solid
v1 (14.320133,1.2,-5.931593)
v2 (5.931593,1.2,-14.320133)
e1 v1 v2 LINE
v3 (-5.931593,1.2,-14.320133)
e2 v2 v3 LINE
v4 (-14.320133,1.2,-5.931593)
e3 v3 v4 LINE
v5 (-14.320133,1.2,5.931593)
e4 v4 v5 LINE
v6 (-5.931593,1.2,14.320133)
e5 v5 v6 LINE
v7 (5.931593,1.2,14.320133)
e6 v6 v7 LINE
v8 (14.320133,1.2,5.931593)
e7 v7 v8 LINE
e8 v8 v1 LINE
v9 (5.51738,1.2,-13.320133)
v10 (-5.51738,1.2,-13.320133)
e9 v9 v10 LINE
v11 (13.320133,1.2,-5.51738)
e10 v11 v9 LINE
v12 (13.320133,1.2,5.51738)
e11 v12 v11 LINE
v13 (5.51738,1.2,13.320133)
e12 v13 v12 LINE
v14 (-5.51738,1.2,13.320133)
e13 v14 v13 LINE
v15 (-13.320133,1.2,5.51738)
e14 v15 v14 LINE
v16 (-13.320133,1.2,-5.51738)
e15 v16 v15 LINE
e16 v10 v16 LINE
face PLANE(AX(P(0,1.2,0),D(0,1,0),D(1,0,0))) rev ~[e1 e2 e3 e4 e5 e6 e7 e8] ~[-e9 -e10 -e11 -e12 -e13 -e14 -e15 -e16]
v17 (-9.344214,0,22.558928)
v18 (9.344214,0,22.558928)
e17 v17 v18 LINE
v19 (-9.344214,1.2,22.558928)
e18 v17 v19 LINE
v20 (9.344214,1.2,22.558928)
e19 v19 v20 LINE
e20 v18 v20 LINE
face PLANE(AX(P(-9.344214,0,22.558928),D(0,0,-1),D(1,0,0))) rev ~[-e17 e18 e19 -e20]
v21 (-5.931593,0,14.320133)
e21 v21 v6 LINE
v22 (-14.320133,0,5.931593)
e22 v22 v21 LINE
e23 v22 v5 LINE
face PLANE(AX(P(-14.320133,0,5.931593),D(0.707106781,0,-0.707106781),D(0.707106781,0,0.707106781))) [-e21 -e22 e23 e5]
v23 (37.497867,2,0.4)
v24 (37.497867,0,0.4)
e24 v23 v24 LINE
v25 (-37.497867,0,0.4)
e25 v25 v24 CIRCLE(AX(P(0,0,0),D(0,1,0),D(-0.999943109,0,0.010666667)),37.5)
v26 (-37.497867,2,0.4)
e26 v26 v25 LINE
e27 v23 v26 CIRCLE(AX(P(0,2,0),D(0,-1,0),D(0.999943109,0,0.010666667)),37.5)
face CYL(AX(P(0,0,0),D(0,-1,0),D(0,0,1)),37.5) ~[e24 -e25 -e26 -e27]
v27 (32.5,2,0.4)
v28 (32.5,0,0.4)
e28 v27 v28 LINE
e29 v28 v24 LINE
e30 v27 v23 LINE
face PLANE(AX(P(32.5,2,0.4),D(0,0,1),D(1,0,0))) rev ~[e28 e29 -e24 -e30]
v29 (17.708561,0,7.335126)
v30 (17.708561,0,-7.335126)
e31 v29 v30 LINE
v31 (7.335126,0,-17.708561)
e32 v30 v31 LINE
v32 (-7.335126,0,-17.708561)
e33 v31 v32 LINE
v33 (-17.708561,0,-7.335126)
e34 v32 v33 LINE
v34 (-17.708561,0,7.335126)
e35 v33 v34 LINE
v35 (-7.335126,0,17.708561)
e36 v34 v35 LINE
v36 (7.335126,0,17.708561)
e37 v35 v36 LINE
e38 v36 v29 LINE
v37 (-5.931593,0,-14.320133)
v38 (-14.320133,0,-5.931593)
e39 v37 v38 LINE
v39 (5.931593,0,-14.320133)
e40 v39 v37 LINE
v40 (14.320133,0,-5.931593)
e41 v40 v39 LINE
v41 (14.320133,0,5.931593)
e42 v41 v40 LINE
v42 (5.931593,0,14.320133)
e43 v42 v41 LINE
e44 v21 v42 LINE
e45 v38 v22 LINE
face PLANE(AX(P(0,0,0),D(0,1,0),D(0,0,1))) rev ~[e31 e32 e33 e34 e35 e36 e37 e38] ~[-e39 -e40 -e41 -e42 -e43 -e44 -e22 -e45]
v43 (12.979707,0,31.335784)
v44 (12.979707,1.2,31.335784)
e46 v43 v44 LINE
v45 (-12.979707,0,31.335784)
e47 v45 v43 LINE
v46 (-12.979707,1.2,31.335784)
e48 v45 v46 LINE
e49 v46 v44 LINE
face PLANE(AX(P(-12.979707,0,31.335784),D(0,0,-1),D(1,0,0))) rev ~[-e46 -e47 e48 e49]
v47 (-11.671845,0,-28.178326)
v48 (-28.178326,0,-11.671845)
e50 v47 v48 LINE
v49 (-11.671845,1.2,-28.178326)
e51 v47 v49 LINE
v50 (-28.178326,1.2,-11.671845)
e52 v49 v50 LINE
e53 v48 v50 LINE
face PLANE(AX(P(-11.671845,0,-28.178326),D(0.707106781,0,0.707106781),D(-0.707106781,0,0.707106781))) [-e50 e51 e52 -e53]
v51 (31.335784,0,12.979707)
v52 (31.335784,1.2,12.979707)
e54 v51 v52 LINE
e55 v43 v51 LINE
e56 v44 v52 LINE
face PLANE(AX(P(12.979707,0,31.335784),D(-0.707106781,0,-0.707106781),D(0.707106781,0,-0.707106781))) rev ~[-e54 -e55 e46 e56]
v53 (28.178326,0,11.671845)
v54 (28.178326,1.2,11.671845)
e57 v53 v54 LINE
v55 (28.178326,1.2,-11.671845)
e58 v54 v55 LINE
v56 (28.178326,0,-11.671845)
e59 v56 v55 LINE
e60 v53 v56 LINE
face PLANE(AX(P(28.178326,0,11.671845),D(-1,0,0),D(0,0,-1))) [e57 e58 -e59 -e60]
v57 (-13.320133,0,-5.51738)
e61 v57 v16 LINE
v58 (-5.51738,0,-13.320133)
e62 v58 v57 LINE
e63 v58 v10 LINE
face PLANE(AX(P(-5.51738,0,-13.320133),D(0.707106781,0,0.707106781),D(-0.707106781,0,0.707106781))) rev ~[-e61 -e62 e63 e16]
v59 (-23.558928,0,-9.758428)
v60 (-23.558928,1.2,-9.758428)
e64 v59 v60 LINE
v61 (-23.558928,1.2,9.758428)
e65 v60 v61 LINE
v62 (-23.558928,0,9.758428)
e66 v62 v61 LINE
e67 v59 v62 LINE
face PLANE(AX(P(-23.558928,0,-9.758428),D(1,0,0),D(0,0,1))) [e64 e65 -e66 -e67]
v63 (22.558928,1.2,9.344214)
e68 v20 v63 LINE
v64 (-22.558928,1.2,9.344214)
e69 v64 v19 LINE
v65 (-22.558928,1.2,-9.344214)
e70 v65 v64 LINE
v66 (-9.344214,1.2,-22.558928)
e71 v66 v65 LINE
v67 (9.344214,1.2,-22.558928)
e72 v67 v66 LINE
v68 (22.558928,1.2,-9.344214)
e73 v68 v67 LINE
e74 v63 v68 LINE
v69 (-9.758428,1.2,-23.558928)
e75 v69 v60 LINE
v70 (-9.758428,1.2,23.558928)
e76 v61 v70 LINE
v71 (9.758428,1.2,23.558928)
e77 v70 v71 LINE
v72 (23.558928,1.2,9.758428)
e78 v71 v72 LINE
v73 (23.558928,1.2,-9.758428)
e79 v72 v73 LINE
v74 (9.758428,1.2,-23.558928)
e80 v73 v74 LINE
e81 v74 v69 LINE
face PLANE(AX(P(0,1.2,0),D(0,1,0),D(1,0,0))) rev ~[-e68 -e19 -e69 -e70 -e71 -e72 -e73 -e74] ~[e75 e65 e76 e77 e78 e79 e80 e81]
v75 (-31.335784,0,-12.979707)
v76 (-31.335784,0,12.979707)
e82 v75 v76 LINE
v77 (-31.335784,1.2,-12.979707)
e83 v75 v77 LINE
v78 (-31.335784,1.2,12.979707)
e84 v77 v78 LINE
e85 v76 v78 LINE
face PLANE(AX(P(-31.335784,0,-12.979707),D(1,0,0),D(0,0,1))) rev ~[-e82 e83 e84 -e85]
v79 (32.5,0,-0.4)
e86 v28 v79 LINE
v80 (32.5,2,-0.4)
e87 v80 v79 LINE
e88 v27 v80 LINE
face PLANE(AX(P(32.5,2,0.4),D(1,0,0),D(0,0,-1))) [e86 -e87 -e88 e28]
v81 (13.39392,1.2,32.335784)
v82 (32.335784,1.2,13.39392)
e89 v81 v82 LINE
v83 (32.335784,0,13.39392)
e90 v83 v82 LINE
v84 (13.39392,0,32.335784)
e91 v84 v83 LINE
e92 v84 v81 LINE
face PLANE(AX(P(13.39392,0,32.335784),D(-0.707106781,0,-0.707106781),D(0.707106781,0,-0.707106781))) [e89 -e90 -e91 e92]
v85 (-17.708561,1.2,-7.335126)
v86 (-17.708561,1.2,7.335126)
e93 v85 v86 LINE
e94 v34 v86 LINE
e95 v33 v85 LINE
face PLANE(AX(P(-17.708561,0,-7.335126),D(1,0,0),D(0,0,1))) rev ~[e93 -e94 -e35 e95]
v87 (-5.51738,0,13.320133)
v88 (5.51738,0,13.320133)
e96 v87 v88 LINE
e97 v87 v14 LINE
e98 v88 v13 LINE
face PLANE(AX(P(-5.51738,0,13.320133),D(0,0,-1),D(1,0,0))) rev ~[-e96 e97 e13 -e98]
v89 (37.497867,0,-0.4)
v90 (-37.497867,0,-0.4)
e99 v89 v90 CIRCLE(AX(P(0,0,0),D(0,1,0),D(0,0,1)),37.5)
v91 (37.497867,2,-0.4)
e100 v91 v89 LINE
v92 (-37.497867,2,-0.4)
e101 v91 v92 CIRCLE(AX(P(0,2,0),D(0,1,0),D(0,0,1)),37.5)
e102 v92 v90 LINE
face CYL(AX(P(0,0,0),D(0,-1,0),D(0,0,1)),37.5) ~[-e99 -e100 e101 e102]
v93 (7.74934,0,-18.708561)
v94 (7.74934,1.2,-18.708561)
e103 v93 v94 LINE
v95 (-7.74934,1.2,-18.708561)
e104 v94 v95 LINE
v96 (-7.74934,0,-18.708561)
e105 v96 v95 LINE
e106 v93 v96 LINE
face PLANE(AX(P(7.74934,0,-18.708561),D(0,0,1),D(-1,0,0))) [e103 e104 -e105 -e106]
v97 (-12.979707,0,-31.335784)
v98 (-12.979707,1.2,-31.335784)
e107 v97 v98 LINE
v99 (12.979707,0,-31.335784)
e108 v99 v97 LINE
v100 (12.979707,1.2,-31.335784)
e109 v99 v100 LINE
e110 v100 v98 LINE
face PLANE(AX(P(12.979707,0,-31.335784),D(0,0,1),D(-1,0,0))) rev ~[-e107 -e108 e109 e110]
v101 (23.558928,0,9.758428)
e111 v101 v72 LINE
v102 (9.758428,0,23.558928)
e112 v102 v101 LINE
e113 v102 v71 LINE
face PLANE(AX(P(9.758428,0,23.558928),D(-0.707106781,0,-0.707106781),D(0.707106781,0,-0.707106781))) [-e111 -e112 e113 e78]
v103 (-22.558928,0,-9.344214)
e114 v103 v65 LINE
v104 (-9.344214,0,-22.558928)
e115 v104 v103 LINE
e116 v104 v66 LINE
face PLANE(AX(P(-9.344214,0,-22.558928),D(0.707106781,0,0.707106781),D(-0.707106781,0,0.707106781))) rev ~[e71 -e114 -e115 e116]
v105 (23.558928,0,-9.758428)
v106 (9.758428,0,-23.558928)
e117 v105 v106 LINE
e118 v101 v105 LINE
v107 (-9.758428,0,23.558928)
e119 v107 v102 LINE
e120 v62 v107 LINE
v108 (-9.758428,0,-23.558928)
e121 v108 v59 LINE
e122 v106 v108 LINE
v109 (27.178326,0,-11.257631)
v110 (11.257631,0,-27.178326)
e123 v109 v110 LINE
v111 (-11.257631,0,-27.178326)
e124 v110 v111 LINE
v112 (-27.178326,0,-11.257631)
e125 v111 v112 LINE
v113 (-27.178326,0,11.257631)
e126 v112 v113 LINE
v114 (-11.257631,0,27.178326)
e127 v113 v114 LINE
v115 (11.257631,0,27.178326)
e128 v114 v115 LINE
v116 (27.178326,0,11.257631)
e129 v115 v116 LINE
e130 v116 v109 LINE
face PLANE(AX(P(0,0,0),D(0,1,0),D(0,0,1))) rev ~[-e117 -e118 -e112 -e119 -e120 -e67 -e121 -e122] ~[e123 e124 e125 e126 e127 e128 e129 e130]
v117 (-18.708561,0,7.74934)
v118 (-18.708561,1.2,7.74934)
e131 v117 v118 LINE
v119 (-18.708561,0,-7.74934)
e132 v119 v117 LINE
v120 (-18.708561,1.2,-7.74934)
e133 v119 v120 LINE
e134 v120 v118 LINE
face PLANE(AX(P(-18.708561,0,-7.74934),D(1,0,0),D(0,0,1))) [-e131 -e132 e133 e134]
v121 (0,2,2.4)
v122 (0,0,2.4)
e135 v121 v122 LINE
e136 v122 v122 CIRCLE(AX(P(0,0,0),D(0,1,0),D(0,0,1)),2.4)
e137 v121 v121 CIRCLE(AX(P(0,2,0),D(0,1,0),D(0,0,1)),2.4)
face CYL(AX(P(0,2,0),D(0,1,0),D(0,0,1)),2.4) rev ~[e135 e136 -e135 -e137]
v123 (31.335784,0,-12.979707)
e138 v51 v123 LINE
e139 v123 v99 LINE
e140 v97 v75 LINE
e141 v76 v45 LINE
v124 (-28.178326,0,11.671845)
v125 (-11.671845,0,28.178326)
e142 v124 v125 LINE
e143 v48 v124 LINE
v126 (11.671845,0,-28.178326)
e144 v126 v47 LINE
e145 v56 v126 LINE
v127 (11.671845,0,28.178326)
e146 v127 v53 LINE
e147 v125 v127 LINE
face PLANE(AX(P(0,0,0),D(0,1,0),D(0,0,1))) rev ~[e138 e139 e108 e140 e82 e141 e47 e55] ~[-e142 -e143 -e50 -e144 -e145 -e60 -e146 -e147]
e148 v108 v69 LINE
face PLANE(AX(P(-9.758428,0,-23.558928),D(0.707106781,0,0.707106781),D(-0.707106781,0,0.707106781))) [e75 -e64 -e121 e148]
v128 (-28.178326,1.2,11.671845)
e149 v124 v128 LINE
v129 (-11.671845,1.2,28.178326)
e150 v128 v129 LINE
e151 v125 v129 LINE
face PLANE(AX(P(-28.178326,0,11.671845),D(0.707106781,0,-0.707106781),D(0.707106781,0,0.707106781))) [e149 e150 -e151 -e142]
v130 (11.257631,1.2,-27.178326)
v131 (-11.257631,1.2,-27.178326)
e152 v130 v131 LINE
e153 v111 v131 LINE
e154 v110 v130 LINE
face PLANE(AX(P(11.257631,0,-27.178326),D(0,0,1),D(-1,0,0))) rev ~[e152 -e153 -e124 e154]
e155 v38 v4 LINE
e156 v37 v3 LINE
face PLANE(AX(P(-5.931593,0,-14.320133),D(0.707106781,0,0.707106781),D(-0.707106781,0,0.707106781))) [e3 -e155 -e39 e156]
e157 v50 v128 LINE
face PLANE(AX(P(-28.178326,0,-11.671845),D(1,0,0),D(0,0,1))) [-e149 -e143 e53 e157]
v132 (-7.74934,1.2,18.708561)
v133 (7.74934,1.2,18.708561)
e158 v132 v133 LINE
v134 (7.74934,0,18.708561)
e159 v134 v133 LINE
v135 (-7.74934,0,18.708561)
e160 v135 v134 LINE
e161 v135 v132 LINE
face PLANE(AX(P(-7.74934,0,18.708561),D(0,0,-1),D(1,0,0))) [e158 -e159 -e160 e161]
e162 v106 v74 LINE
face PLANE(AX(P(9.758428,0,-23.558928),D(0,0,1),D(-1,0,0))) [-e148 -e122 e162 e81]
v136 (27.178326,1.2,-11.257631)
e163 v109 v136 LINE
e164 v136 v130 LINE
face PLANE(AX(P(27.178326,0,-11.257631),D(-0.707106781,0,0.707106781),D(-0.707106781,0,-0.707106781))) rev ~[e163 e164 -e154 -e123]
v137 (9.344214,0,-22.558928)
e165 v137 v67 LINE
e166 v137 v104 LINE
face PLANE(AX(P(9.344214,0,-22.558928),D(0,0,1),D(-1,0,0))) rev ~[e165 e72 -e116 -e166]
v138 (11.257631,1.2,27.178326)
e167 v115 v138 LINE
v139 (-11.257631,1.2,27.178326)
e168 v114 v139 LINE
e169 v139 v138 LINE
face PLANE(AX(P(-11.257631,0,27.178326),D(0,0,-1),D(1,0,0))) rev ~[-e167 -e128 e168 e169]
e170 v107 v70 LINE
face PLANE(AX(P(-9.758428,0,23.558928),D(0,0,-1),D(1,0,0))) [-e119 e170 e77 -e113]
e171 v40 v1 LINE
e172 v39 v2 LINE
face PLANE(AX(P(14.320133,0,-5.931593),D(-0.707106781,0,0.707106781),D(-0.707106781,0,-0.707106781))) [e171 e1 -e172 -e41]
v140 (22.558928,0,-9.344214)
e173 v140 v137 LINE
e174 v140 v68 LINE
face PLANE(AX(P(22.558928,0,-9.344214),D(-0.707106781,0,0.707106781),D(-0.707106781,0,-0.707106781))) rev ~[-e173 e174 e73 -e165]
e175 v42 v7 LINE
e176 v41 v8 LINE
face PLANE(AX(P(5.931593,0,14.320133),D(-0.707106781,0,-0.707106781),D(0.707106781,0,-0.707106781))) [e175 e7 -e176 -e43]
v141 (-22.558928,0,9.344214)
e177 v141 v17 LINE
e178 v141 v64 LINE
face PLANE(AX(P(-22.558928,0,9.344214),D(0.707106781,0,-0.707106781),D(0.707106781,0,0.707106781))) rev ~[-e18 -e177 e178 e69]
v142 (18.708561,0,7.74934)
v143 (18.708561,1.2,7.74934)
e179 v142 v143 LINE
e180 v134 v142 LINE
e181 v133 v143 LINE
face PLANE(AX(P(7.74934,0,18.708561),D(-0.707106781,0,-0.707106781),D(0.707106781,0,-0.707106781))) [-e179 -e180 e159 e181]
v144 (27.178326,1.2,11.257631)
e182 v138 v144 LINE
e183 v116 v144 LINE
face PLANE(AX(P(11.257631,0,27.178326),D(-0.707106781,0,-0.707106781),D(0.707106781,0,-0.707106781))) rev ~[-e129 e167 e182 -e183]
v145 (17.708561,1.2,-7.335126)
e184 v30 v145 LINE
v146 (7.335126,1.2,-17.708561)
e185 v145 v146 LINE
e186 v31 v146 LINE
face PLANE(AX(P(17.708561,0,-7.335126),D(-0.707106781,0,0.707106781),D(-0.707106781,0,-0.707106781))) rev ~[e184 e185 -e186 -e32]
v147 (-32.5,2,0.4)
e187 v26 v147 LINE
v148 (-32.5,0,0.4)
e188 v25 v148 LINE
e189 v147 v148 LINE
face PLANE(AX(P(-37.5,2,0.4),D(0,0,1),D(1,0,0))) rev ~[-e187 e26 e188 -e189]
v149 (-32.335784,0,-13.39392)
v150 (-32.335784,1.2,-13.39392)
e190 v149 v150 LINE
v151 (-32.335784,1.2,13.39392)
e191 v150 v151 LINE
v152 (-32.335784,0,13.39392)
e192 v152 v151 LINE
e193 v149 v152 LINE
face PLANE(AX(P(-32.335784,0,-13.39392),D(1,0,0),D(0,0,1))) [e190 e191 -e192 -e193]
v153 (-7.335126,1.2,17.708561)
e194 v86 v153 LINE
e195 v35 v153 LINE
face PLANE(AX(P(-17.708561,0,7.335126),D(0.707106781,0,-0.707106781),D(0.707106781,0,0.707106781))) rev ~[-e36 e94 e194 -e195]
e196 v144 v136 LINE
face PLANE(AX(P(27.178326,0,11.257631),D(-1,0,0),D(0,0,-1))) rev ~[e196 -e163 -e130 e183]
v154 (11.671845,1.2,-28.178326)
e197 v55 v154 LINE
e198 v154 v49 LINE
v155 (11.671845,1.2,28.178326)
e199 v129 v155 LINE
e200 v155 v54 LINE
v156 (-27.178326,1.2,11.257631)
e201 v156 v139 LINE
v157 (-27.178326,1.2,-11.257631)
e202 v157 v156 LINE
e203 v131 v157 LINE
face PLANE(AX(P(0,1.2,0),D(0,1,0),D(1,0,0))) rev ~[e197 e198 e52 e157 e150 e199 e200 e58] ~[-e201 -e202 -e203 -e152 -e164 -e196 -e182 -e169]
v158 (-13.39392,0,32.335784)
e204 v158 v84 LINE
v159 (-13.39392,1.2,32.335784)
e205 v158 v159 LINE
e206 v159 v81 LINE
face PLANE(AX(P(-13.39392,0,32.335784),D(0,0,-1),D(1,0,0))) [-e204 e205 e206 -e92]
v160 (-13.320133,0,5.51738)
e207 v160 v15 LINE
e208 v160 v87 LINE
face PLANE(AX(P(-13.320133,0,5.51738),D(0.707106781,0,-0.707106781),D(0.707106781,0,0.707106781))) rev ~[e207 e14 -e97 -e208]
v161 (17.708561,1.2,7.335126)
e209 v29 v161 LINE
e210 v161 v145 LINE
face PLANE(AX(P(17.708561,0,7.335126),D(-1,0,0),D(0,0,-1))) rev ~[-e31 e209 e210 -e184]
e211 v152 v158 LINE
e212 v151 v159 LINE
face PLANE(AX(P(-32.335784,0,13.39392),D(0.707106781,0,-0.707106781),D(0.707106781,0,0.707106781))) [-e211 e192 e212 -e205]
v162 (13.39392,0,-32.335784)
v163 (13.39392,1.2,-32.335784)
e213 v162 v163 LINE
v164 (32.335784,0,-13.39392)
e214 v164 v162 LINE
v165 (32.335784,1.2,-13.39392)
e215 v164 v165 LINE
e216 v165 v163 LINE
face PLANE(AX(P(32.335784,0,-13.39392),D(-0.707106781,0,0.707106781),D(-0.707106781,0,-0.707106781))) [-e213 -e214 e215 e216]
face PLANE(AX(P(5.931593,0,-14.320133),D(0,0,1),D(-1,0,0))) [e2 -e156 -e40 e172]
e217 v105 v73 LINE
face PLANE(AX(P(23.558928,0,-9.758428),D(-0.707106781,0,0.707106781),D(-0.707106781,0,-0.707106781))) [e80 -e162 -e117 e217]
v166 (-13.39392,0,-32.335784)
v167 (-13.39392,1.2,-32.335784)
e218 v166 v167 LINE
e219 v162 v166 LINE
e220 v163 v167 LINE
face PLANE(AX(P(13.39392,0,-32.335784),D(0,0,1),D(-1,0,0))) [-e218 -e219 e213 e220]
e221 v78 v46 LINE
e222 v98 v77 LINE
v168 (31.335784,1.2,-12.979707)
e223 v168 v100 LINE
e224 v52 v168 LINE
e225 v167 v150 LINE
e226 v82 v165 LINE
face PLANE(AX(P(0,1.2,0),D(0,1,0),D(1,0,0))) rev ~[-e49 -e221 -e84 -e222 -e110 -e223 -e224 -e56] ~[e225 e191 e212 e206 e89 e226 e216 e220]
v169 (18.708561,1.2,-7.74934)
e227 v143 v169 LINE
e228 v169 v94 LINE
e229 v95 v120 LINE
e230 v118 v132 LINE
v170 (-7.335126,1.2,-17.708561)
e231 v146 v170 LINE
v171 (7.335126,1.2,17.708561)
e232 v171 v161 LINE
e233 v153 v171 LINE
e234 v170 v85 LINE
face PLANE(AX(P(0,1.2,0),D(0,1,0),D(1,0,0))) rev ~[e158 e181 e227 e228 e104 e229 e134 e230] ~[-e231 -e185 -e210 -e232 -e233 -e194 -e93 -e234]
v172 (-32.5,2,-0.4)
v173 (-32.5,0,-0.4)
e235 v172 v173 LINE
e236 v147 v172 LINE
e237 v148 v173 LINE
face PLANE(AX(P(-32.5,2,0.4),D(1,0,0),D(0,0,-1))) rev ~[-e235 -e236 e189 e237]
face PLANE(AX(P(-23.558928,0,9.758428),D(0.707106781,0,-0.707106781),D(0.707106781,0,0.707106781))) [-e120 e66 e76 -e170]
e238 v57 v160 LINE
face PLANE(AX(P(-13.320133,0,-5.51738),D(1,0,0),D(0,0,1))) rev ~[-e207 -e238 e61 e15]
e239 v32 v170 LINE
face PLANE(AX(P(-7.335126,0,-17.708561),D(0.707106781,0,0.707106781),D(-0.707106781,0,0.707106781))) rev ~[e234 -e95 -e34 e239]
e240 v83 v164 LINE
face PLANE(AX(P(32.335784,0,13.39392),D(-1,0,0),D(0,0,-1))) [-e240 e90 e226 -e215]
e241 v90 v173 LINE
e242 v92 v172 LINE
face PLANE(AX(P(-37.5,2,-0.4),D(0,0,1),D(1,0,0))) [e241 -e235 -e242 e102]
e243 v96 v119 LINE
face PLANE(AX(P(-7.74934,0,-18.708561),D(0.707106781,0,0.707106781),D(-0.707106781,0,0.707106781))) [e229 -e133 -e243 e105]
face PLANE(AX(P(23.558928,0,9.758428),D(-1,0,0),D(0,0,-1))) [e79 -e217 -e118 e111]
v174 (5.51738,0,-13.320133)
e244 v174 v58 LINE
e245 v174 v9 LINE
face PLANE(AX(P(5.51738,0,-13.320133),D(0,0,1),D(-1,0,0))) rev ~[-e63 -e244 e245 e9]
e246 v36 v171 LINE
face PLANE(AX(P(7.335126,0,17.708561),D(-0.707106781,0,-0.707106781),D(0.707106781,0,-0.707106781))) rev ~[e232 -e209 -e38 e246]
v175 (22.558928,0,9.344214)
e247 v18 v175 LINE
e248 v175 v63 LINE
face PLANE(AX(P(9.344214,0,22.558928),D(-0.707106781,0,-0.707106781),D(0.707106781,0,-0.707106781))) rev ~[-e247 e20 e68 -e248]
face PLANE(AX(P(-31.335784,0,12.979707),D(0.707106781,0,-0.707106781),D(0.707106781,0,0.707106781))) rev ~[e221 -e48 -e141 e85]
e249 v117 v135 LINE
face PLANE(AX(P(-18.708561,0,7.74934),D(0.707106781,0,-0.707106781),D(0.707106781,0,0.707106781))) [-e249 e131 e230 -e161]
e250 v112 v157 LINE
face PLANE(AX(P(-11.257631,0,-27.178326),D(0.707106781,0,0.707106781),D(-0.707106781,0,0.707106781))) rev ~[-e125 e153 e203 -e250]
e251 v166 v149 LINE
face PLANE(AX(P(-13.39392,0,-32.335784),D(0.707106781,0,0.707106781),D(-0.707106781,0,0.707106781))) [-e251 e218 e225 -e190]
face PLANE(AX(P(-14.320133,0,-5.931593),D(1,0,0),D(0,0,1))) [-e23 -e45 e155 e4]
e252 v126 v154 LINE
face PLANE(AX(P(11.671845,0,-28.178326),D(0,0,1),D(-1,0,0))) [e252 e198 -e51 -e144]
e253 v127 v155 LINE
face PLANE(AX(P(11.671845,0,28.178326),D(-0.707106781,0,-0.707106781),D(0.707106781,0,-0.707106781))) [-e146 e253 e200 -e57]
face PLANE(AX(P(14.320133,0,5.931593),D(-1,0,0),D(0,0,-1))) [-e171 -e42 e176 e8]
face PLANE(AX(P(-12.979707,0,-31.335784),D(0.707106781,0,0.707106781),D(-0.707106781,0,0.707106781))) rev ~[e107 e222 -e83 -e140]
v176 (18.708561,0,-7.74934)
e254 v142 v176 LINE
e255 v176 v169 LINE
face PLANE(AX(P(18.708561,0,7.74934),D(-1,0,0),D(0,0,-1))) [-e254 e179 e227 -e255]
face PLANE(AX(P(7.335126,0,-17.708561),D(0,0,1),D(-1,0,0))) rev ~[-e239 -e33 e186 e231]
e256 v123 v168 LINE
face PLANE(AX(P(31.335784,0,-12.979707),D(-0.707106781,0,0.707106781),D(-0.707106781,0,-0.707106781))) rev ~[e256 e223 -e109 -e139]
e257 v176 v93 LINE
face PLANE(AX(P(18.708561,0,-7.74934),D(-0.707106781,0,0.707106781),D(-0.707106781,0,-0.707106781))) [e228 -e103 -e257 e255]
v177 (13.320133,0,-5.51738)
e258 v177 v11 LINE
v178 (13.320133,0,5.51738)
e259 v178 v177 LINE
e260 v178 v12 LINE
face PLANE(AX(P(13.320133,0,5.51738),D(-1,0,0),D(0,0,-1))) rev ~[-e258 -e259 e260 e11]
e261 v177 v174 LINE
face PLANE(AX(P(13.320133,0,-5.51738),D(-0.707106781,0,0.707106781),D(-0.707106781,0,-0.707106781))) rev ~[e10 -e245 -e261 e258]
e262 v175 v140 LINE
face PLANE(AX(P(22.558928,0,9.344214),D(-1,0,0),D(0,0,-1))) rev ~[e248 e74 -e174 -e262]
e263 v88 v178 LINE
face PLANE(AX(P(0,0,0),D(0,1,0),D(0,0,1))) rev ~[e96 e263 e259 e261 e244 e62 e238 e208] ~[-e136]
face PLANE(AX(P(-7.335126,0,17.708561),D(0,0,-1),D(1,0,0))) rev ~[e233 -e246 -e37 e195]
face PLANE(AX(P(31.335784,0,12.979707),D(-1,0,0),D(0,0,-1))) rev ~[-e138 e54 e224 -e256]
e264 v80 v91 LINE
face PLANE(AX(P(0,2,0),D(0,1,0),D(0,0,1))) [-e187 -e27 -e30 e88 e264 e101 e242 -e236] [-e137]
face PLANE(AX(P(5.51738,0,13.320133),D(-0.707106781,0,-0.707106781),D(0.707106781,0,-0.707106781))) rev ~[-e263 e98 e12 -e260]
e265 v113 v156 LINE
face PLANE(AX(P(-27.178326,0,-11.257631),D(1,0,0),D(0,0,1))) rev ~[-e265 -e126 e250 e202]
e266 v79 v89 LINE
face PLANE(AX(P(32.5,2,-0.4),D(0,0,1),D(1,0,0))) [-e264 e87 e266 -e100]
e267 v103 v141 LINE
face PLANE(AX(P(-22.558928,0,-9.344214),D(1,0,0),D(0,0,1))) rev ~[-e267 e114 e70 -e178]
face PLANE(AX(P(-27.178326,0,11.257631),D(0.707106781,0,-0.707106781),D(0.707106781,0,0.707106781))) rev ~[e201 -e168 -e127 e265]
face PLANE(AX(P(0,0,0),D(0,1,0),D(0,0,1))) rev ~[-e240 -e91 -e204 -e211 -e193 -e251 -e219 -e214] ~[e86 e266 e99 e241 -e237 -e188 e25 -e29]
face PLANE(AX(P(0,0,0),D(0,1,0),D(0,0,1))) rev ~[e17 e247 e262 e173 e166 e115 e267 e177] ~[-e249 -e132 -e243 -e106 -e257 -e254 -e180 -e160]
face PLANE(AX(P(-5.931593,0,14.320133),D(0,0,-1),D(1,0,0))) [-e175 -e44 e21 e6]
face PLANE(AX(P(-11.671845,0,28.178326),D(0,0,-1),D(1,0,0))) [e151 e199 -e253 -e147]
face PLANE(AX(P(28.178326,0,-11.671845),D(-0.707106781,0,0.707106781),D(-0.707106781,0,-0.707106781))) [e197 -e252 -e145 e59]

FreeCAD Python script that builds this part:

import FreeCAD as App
import Part
import Sketcher
from FreeCAD import Vector
Q = App.Units.Quantity

doc = App.newDocument("Part")
body = doc.addObject("PartDesign::Body", "Body")

# Sketch on XZ plane
sketch1 = doc.addObject("Sketcher::SketchObject", "Sketch")
body.addObject(sketch1)
sketch1.AttachmentSupport = (doc.XZ_Plane, [""])
sketch1.MapMode = "FlatFace"
sketch1.addGeometry(Part.Circle(Vector(0, 0, 0), Vector(0, 0, 1), 38), False)
sketch1.addConstraint(Sketcher.Constraint("Coincident", 0, 3, -1, 1))
sketch1.addConstraint(Sketcher.Constraint("Diameter", 0, Q("75 mm")))
pad1 = doc.addObject("PartDesign::Pad", "Pad")
body.addObject(pad1)
pad1.Profile = sketch1
pad1.Length = 2
pad1.Reversed = True

# Sketch on XZ plane
sketch2 = doc.addObject("Sketcher::SketchObject", "Sketch001")
body.addObject(sketch2)
sketch2.AttachmentSupport = (doc.XZ_Plane, [""])
sketch2.MapMode = "FlatFace"
sketch2.addGeometry(Part.LineSegment(Vector(13, 32, 0), Vector(32, 13, 0)), False)
sketch2.addGeometry(Part.LineSegment(Vector(32, 13, 0), Vector(32, -13, 0)), False)
sketch2.addGeometry(Part.LineSegment(Vector(32, -13, 0), Vector(13, -32, 0)), False)
sketch2.addGeometry(Part.LineSegment(Vector(13, -32, 0), Vector(-13, -32, 0)), False)
sketch2.addGeometry(Part.LineSegment(Vector(-13, -32, 0), Vector(-32, -13, 0)), False)
sketch2.addGeometry(Part.LineSegment(Vector(-32, -13, 0), Vector(-32, 13, 0)), False)
sketch2.addGeometry(Part.LineSegment(Vector(-32, 13, 0), Vector(-13, 32, 0)), False)
sketch2.addGeometry(Part.LineSegment(Vector(-13, 32, 0), Vector(13, 32, 0)), False)
sketch2.addGeometry(Part.LineSegment(Vector(31, 13, 0), Vector(13, 31, 0)), False)
sketch2.addGeometry(Part.LineSegment(Vector(13, 31, 0), Vector(-13, 31, 0)), False)
sketch2.addGeometry(Part.LineSegment(Vector(-13, 31, 0), Vector(-31, 13, 0)), False)
sketch2.addGeometry(Part.LineSegment(Vector(-31, 13, 0), Vector(-31, -13, 0)), False)
sketch2.addGeometry(Part.LineSegment(Vector(-31, -13, 0), Vector(-13, -31, 0)), False)
sketch2.addGeometry(Part.LineSegment(Vector(-13, -31, 0), Vector(13, -31, 0)), False)
sketch2.addGeometry(Part.LineSegment(Vector(13, -31, 0), Vector(31, -13, 0)), False)
sketch2.addGeometry(Part.LineSegment(Vector(31, -13, 0), Vector(31, 13, 0)), False)
sketch2.addGeometry(Part.LineSegment(Vector(12, 28, 0), Vector(28, 12, 0)), False)
sketch2.addGeometry(Part.LineSegment(Vector(28, 12, 0), Vector(28, -12, 0)), False)
sketch2.addGeometry(Part.LineSegment(Vector(28, -12, 0), Vector(12, -28, 0)), False)
sketch2.addGeometry(Part.LineSegment(Vector(12, -28, 0), Vector(-12, -28, 0)), False)
sketch2.addGeometry(Part.LineSegment(Vector(-12, -28, 0), Vector(-28, -12, 0)), False)
sketch2.addGeometry(Part.LineSegment(Vector(-28, -12, 0), Vector(-28, 12, 0)), False)
sketch2.addGeometry(Part.LineSegment(Vector(-28, 12, 0), Vector(-12, 28, 0)), False)
sketch2.addGeometry(Part.LineSegment(Vector(-12, 28, 0), Vector(12, 28, 0)), False)
sketch2.addGeometry(Part.LineSegment(Vector(27, 11, 0), Vector(11, 27, 0)), False)
sketch2.addGeometry(Part.LineSegment(Vector(11, 27, 0), Vector(-11, 27, 0)), False)
sketch2.addGeometry(Part.LineSegment(Vector(-11, 27, 0), Vector(-27, 11, 0)), False)
sketch2.addGeometry(Part.LineSegment(Vector(-27, 11, 0), Vector(-27, -11, 0)), False)
sketch2.addGeometry(Part.LineSegment(Vector(-27, -11, 0), Vector(-11, -27, 0)), False)
sketch2.addGeometry(Part.LineSegment(Vector(-11, -27, 0), Vector(11, -27, 0)), False)
sketch2.addGeometry(Part.LineSegment(Vector(11, -27, 0), Vector(27, -11, 0)), False)
sketch2.addGeometry(Part.LineSegment(Vector(27, -11, 0), Vector(27, 11, 0)), False)
sketch2.addGeometry(Part.LineSegment(Vector(-10, 24, 0), Vector(10, 24, 0)), False)
sketch2.addGeometry(Part.LineSegment(Vector(10, 24, 0), Vector(24, 10, 0)), False)
sketch2.addGeometry(Part.LineSegment(Vector(24, 10, 0), Vector(24, -10, 0)), False)
sketch2.addGeometry(Part.LineSegment(Vector(24, -10, 0), Vector(10, -24, 0)), False)
sketch2.addGeometry(Part.LineSegment(Vector(10, -24, 0), Vector(-10, -24, 0)), False)
sketch2.addGeometry(Part.LineSegment(Vector(-10, -24, 0), Vector(-24, -10, 0)), False)
sketch2.addGeometry(Part.LineSegment(Vector(-24, -10, 0), Vector(-24, 10, 0)), False)
sketch2.addGeometry(Part.LineSegment(Vector(-24, 10, 0), Vector(-10, 24, 0)), False)
sketch2.addGeometry(Part.LineSegment(Vector(9, 23, 0), Vector(-9, 23, 0)), False)
sketch2.addGeometry(Part.LineSegment(Vector(-9, 23, 0), Vector(-23, 9, 0)), False)
sketch2.addGeometry(Part.LineSegment(Vector(-23, 9, 0), Vector(-23, -9, 0)), False)
sketch2.addGeometry(Part.LineSegment(Vector(-23, -9, 0), Vector(-9, -23, 0)), False)
sketch2.addGeometry(Part.LineSegment(Vector(-9, -23, 0), Vector(9, -23, 0)), False)
sketch2.addGeometry(Part.LineSegment(Vector(9, -23, 0), Vector(23, -9, 0)), False)
sketch2.addGeometry(Part.LineSegment(Vector(23, -9, 0), Vector(23, 9, 0)), False)
sketch2.addGeometry(Part.LineSegment(Vector(23, 9, 0), Vector(9, 23, 0)), False)
sketch2.addGeometry(Part.LineSegment(Vector(8, 19, 0), Vector(19, 8, 0)), False)
sketch2.addGeometry(Part.LineSegment(Vector(19, 8, 0), Vector(19, -8, 0)), False)
sketch2.addGeometry(Part.LineSegment(Vector(19, -8, 0), Vector(8, -19, 0)), False)
sketch2.addGeometry(Part.LineSegment(Vector(8, -19, 0), Vector(-8, -19, 0)), False)
sketch2.addGeometry(Part.LineSegment(Vector(-8, -19, 0), Vector(-19, -8, 0)), False)
sketch2.addGeometry(Part.LineSegment(Vector(-19, -8, 0), Vector(-19, 8, 0)), False)
sketch2.addGeometry(Part.LineSegment(Vector(-19, 8, 0), Vector(-8, 19, 0)), False)
sketch2.addGeometry(Part.LineSegment(Vector(-8, 19, 0), Vector(8, 19, 0)), False)
sketch2.addGeometry(Part.LineSegment(Vector(18, 7, 0), Vector(7, 18, 0)), False)
sketch2.addGeometry(Part.LineSegment(Vector(7, 18, 0), Vector(-7, 18, 0)), False)
sketch2.addGeometry(Part.LineSegment(Vector(-7, 18, 0), Vector(-18, 7, 0)), False)
sketch2.addGeometry(Part.LineSegment(Vector(-18, 7, 0), Vector(-18, -7, 0)), False)
sketch2.addGeometry(Part.LineSegment(Vector(-18, -7, 0), Vector(-7, -18, 0)), False)
sketch2.addGeometry(Part.LineSegment(Vector(-7, -18, 0), Vector(7, -18, 0)), False)
sketch2.addGeometry(Part.LineSegment(Vector(7, -18, 0), Vector(18, -7, 0)), False)
sketch2.addGeometry(Part.LineSegment(Vector(18, -7, 0), Vector(18, 7, 0)), False)
sketch2.addGeometry(Part.LineSegment(Vector(-6, -14, 0), Vector(-14, -6, 0)), False)
sketch2.addGeometry(Part.LineSegment(Vector(-14, -6, 0), Vector(-14, 6, 0)), False)
sketch2.addGeometry(Part.LineSegment(Vector(-14, 6, 0), Vector(-6, 14, 0)), False)
sketch2.addGeometry(Part.LineSegment(Vector(-6, 14, 0), Vector(6, 14, 0)), False)
sketch2.addGeometry(Part.LineSegment(Vector(6, 14, 0), Vector(14, 6, 0)), False)
sketch2.addGeometry(Part.LineSegment(Vector(14, 6, 0), Vector(14, -6, 0)), False)
sketch2.addGeometry(Part.LineSegment(Vector(14, -6, 0), Vector(6, -14, 0)), False)
sketch2.addGeometry(Part.LineSegment(Vector(6, -14, 0), Vector(-6, -14, 0)), False)
sketch2.addGeometry(Part.LineSegment(Vector(-13, -6, 0), Vector(-6, -13, 0)), False)
sketch2.addGeometry(Part.LineSegment(Vector(-6, -13, 0), Vector(6, -13, 0)), False)
sketch2.addGeometry(Part.LineSegment(Vector(6, -13, 0), Vector(13, -6, 0)), False)
sketch2.addGeometry(Part.LineSegment(Vector(13, -6, 0), Vector(13, 6, 0)), False)
sketch2.addGeometry(Part.LineSegment(Vector(13, 6, 0), Vector(6, 13, 0)), False)
sketch2.addGeometry(Part.LineSegment(Vector(6, 13, 0), Vector(-6, 13, 0)), False)
sketch2.addGeometry(Part.LineSegment(Vector(-6, 13, 0), Vector(-13, 6, 0)), False)
sketch2.addGeometry(Part.LineSegment(Vector(-13, 6, 0), Vector(-13, -6, 0)), False)
sketch2.addConstraint(Sketcher.Constraint("Coincident", 0, 2, 1, 1))
sketch2.addConstraint(Sketcher.Constraint("Coincident", 1, 2, 2, 1))
sketch2.addConstraint(Sketcher.Constraint("Coincident", 2, 2, 3, 1))
sketch2.addConstraint(Sketcher.Constraint("Coincident", 3, 2, 4, 1))
sketch2.addConstraint(Sketcher.Constraint("Coincident", 4, 2, 5, 1))
sketch2.addConstraint(Sketcher.Constraint("Coincident", 5, 2, 6, 1))
sketch2.addConstraint(Sketcher.Constraint("Coincident", 6, 2, 7, 1))
sketch2.addConstraint(Sketcher.Constraint("Coincident", 7, 2, 0, 1))
sketch2.addConstraint(Sketcher.Constraint("Coincident", 8, 2, 9, 1))
sketch2.addConstraint(Sketcher.Constraint("Coincident", 9, 2, 10, 1))
sketch2.addConstraint(Sketcher.Constraint("Coincident", 10, 2, 11, 1))
sketch2.addConstraint(Sketcher.Constraint("Coincident", 11, 2, 12, 1))
sketch2.addConstraint(Sketcher.Constraint("Coincident", 12, 2, 13, 1))
sketch2.addConstraint(Sketcher.Constraint("Coincident", 13, 2, 14, 1))
sketch2.addConstraint(Sketcher.Constraint("Coincident", 14, 2, 15, 1))
sketch2.addConstraint(Sketcher.Constraint("Coincident", 15, 2, 8, 1))
sketch2.addConstraint(Sketcher.Constraint("Coincident", 16, 2, 17, 1))
sketch2.addConstraint(Sketcher.Constraint("Coincident", 17, 2, 18, 1))
sketch2.addConstraint(Sketcher.Constraint("Coincident", 18, 2, 19, 1))
sketch2.addConstraint(Sketcher.Constraint("Coincident", 19, 2, 20, 1))
sketch2.addConstraint(Sketcher.Constraint("Coincident", 20, 2, 21, 1))
sketch2.addConstraint(Sketcher.Constraint("Coincident", 21, 2, 22, 1))
sketch2.addConstraint(Sketcher.Constraint("Coincident", 22, 2, 23, 1))
sketch2.addConstraint(Sketcher.Constraint("Coincident", 23, 2, 16, 1))
sketch2.addConstraint(Sketcher.Constraint("Coincident", 24, 2, 25, 1))
sketch2.addConstraint(Sketcher.Constraint("Coincident", 25, 2, 26, 1))
sketch2.addConstraint(Sketcher.Constraint("Coincident", 26, 2, 27, 1))
sketch2.addConstraint(Sketcher.Constraint("Coincident", 27, 2, 28, 1))
sketch2.addConstraint(Sketcher.Constraint("Coincident", 28, 2, 29, 1))
sketch2.addConstraint(Sketcher.Constraint("Coincident", 29, 2, 30, 1))
sketch2.addConstraint(Sketcher.Constraint("Coincident", 30, 2, 31, 1))
sketch2.addConstraint(Sketcher.Constraint("Coincident", 31, 2, 24, 1))
sketch2.addConstraint(Sketcher.Constraint("Coincident", 32, 2, 33, 1))
sketch2.addConstraint(Sketcher.Constraint("Coincident", 33, 2, 34, 1))
sketch2.addConstraint(Sketcher.Constraint("Coincident", 34, 2, 35, 1))
sketch2.addConstraint(Sketcher.Constraint("Coincident", 35, 2, 36, 1))
sketch2.addConstraint(Sketcher.Constraint("Coincident", 36, 2, 37, 1))
sketch2.addConstraint(Sketcher.Constraint("Coincident", 37, 2, 38, 1))
sketch2.addConstraint(Sketcher.Constraint("Coincident", 38, 2, 39, 1))
sketch2.addConstraint(Sketcher.Constraint("Coincident", 39, 2, 32, 1))
sketch2.addConstraint(Sketcher.Constraint("Coincident", 40, 2, 41, 1))
sketch2.addConstraint(Sketcher.Constraint("Coincident", 41, 2, 42, 1))
sketch2.addConstraint(Sketcher.Constraint("Coincident", 42, 2, 43, 1))
sketch2.addConstraint(Sketcher.Constraint("Coincident", 43, 2, 44, 1))
sketch2.addConstraint(Sketcher.Constraint("Coincident", 44, 2, 45, 1))
sketch2.addConstraint(Sketcher.Constraint("Coincident", 45, 2, 46, 1))
sketch2.addConstraint(Sketcher.Constraint("Coincident", 46, 2, 47, 1))
sketch2.addConstraint(Sketcher.Constraint("Coincident", 47, 2, 40, 1))
sketch2.addConstraint(Sketcher.Constraint("Coincident", 48, 2, 49, 1))
sketch2.addConstraint(Sketcher.Constraint("Coincident", 49, 2, 50, 1))
sketch2.addConstraint(Sketcher.Constraint("Coincident", 50, 2, 51, 1))
sketch2.addConstraint(Sketcher.Constraint("Coincident", 51, 2, 52, 1))
sketch2.addConstraint(Sketcher.Constraint("Coincident", 52, 2, 53, 1))
sketch2.addConstraint(Sketcher.Constraint("Coincident", 53, 2, 54, 1))
sketch2.addConstraint(Sketcher.Constraint("Coincident", 54, 2, 55, 1))
sketch2.addConstraint(Sketcher.Constraint("Coincident", 55, 2, 48, 1))
sketch2.addConstraint(Sketcher.Constraint("Coincident", 56, 2, 57, 1))
sketch2.addConstraint(Sketcher.Constraint("Coincident", 57, 2, 58, 1))
sketch2.addConstraint(Sketcher.Constraint("Coincident", 58, 2, 59, 1))
sketch2.addConstraint(Sketcher.Constraint("Coincident", 59, 2, 60, 1))
sketch2.addConstraint(Sketcher.Constraint("Coincident", 60, 2, 61, 1))
sketch2.addConstraint(Sketcher.Constraint("Coincident", 61, 2, 62, 1))
sketch2.addConstraint(Sketcher.Constraint("Coincident", 62, 2, 63, 1))
sketch2.addConstraint(Sketcher.Constraint("Coincident", 63, 2, 56, 1))
sketch2.addConstraint(Sketcher.Constraint("Coincident", 64, 2, 65, 1))
sketch2.addConstraint(Sketcher.Constraint("Coincident", 65, 2, 66, 1))
sketch2.addConstraint(Sketcher.Constraint("Coincident", 66, 2, 67, 1))
sketch2.addConstraint(Sketcher.Constraint("Coincident", 67, 2, 68, 1))
sketch2.addConstraint(Sketcher.Constraint("Coincident", 68, 2, 69, 1))
sketch2.addConstraint(Sketcher.Constraint("Coincident", 69, 2, 70, 1))
sketch2.addConstraint(Sketcher.Constraint("Coincident", 70, 2, 71, 1))
sketch2.addConstraint(Sketcher.Constraint("Coincident", 71, 2, 64, 1))
sketch2.addConstraint(Sketcher.Constraint("Coincident", 72, 2, 73, 1))
sketch2.addConstraint(Sketcher.Constraint("Coincident", 73, 2, 74, 1))
sketch2.addConstraint(Sketcher.Constraint("Coincident", 74, 2, 75, 1))
sketch2.addConstraint(Sketcher.Constraint("Coincident", 75, 2, 76, 1))
sketch2.addConstraint(Sketcher.Constraint("Coincident", 76, 2, 77, 1))
sketch2.addConstraint(Sketcher.Constraint("Coincident", 77, 2, 78, 1))
sketch2.addConstraint(Sketcher.Constraint("Coincident", 78, 2, 79, 1))
sketch2.addConstraint(Sketcher.Constraint("Coincident", 79, 2, 72, 1))
sketch2.addConstraint(Sketcher.Constraint("Vertical", 1))
sketch2.addConstraint(Sketcher.Constraint("Horizontal", 3))
sketch2.addConstraint(Sketcher.Constraint("Vertical", 5))
sketch2.addConstraint(Sketcher.Constraint("Horizontal", 7))
sketch2.addConstraint(Sketcher.Constraint("Horizontal", 9))
sketch2.addConstraint(Sketcher.Constraint("Vertical", 11))
sketch2.addConstraint(Sketcher.Constraint("Horizontal", 13))
sketch2.addConstraint(Sketcher.Constraint("Vertical", 15))
sketch2.addConstraint(Sketcher.Constraint("Vertical", 17))
sketch2.addConstraint(Sketcher.Constraint("Horizontal", 19))
sketch2.addConstraint(Sketcher.Constraint("Vertical", 21))
sketch2.addConstraint(Sketcher.Constraint("Horizontal", 23))
sketch2.addConstraint(Sketcher.Constraint("Horizontal", 25))
sketch2.addConstraint(Sketcher.Constraint("Vertical", 27))
sketch2.addConstraint(Sketcher.Constraint("Horizontal", 29))
sketch2.addConstraint(Sketcher.Constraint("Vertical", 31))
sketch2.addConstraint(Sketcher.Constraint("Horizontal", 32))
sketch2.addConstraint(Sketcher.Constraint("Vertical", 34))
sketch2.addConstraint(Sketcher.Constraint("Horizontal", 36))
sketch2.addConstraint(Sketcher.Constraint("Vertical", 38))
sketch2.addConstraint(Sketcher.Constraint("Horizontal", 40))
sketch2.addConstraint(Sketcher.Constraint("Vertical", 42))
sketch2.addConstraint(Sketcher.Constraint("Horizontal", 44))
sketch2.addConstraint(Sketcher.Constraint("Vertical", 46))
sketch2.addConstraint(Sketcher.Constraint("Vertical", 49))
sketch2.addConstraint(Sketcher.Constraint("Horizontal", 51))
sketch2.addConstraint(Sketcher.Constraint("Vertical", 53))
sketch2.addConstraint(Sketcher.Constraint("Horizontal", 55))
sketch2.addConstraint(Sketcher.Constraint("Horizontal", 57))
sketch2.addConstraint(Sketcher.Constraint("Vertical", 59))
sketch2.addConstraint(Sketcher.Constraint("Horizontal", 61))
sketch2.addConstraint(Sketcher.Constraint("Vertical", 63))
sketch2.addConstraint(Sketcher.Constraint("Vertical", 65))
sketch2.addConstraint(Sketcher.Constraint("Horizontal", 67))
sketch2.addConstraint(Sketcher.Constraint("Vertical", 69))
sketch2.addConstraint(Sketcher.Constraint("Horizontal", 71))
sketch2.addConstraint(Sketcher.Constraint("Horizontal", 73))
sketch2.addConstraint(Sketcher.Constraint("Vertical", 75))
sketch2.addConstraint(Sketcher.Constraint("Horizontal", 77))
sketch2.addConstraint(Sketcher.Constraint("Vertical", 79))
sketch2.addConstraint(Sketcher.Constraint("Symmetric", 0, 2, 4, 2, -1, 1))
sketch2.addConstraint(Sketcher.Constraint("Symmetric", 2, 2, 6, 2, -1, 1))
sketch2.addConstraint(Sketcher.Constraint("Symmetric", 8, 2, 12, 2, -1, 1))
sketch2.addConstraint(Sketcher.Constraint("Symmetric", 10, 2, 14, 2, -1, 1))
sketch2.addConstraint(Sketcher.Constraint("Symmetric", 16, 2, 20, 2, -1, 1))
sketch2.addConstraint(Sketcher.Constraint("Symmetric", 18, 2, 22, 2, -1, 1))
sketch2.addConstraint(Sketcher.Constraint("Symmetric", 24, 2, 28, 2, -1, 1))
sketch2.addConstraint(Sketcher.Constraint("Symmetric", 26, 2, 30, 2, -1, 1))
sketch2.addConstraint(Sketcher.Constraint("Symmetric", 32, 2, 36, 2, -1, 1))
sketch2.addConstraint(Sketcher.Constraint("Symmetric", 33, 2, 37, 2, -1, 1))
sketch2.addConstraint(Sketcher.Constraint("Symmetric", 40, 2, 44, 2, -1, 1))
sketch2.addConstraint(Sketcher.Constraint("Symmetric", 41, 2, 45, 2, -1, 1))
sketch2.addConstraint(Sketcher.Constraint("Symmetric", 48, 2, 52, 2, -1, 1))
sketch2.addConstraint(Sketcher.Constraint("Symmetric", 50, 2, 54, 2, -1, 1))
sketch2.addConstraint(Sketcher.Constraint("Symmetric", 56, 2, 60, 2, -1, 1))
sketch2.addConstraint(Sketcher.Constraint("Symmetric", 58, 2, 62, 2, -1, 1))
sketch2.addConstraint(Sketcher.Constraint("Symmetric", 64, 2, 68, 2, -1, 1))
sketch2.addConstraint(Sketcher.Constraint("Symmetric", 66, 2, 70, 2, -1, 1))
sketch2.addConstraint(Sketcher.Constraint("Symmetric", 72, 2, 76, 2, -1, 1))
sketch2.addConstraint(Sketcher.Constraint("Symmetric", 74, 2, 78, 2, -1, 1))
sketch2.addConstraint(Sketcher.Constraint("Perpendicular", 0, 2))
sketch2.addConstraint(Sketcher.Constraint("Perpendicular", 2, 4))
sketch2.addConstraint(Sketcher.Constraint("Perpendicular", 4, 6))
sketch2.addConstraint(Sketcher.Constraint("Perpendicular", 6, 8))
sketch2.addConstraint(Sketcher.Constraint("Perpendicular", 8, 10))
sketch2.addConstraint(Sketcher.Constraint("Perpendicular", 10, 12))
sketch2.addConstraint(Sketcher.Constraint("Perpendicular", 12, 14))
sketch2.addConstraint(Sketcher.Constraint("Perpendicular", 14, 16))
sketch2.addConstraint(Sketcher.Constraint("Perpendicular", 16, 18))
sketch2.addConstraint(Sketcher.Constraint("Perpendicular", 18, 20))
sketch2.addConstraint(Sketcher.Constraint("Perpendicular", 20, 22))
sketch2.addConstraint(Sketcher.Constraint("Perpendicular", 22, 24))
sketch2.addConstraint(Sketcher.Constraint("Perpendicular", 24, 26))
sketch2.addConstraint(Sketcher.Constraint("Perpendicular", 26, 28))
sketch2.addConstraint(Sketcher.Constraint("Perpendicular", 28, 30))
sketch2.addConstraint(Sketcher.Constraint("Perpendicular", 30, 33))
sketch2.addConstraint(Sketcher.Constraint("Perpendicular", 33, 35))
sketch2.addConstraint(Sketcher.Constraint("Perpendicular", 37, 39))
sketch2.addConstraint(Sketcher.Constraint("Parallel", 39, 41))
sketch2.addConstraint(Sketcher.Constraint("Perpendicular", 41, 43))
sketch2.addConstraint(Sketcher.Constraint("Perpendicular", 45, 47))
sketch2.addConstraint(Sketcher.Constraint("Parallel", 47, 48))
sketch2.addConstraint(Sketcher.Constraint("Perpendicular", 48, 50))
sketch2.addConstraint(Sketcher.Constraint("Perpendicular", 50, 52))
sketch2.addConstraint(Sketcher.Constraint("Perpendicular", 52, 54))
sketch2.addConstraint(Sketcher.Constraint("Perpendicular", 54, 56))
sketch2.addConstraint(Sketcher.Constraint("Perpendicular", 56, 58))
sketch2.addConstraint(Sketcher.Constraint("Perpendicular", 58, 60))
sketch2.addConstraint(Sketcher.Constraint("Perpendicular", 60, 62))
sketch2.addConstraint(Sketcher.Constraint("Perpendicular", 62, 64))
sketch2.addConstraint(Sketcher.Constraint("Perpendicular", 64, 66))
sketch2.addConstraint(Sketcher.Constraint("Perpendicular", 66, 68))
sketch2.addConstraint(Sketcher.Constraint("Perpendicular", 68, 70))
sketch2.addConstraint(Sketcher.Constraint("Perpendicular", 70, 72))
sketch2.addConstraint(Sketcher.Constraint("Perpendicular", 72, 74))
sketch2.addConstraint(Sketcher.Constraint("Perpendicular", 74, 76))
sketch2.addConstraint(Sketcher.Constraint("Perpendicular", 76, 78))
sketch2.addConstraint(Sketcher.Constraint("Horizontal", 1, 2, 4, 2))
sketch2.addConstraint(Sketcher.Constraint("Horizontal", 11, 2, 14, 2))
sketch2.addConstraint(Sketcher.Constraint("Horizontal", 17, 2, 20, 2))
sketch2.addConstraint(Sketcher.Constraint("Horizontal", 27, 2, 30, 2))
sketch2.addConstraint(Sketcher.Constraint("Horizontal", 34, 2, 37, 2))
sketch2.addConstraint(Sketcher.Constraint("Horizontal", 33, 2, 38, 2))
sketch2.addConstraint(Sketcher.Constraint("Horizontal", 42, 2, 45, 2))
sketch2.addConstraint(Sketcher.Constraint("Horizontal", 41, 2, 46, 2))
sketch2.addConstraint(Sketcher.Constraint("Horizontal", 49, 2, 52, 2))
sketch2.addConstraint(Sketcher.Constraint("Horizontal", 59, 2, 62, 2))
sketch2.addConstraint(Sketcher.Constraint("Horizontal", 65, 2, 68, 2))
sketch2.addConstraint(Sketcher.Constraint("Horizontal", 75, 2, 78, 2))
sketch2.addConstraint(Sketcher.Constraint("Vertical", 3, 2, 6, 2))
sketch2.addConstraint(Sketcher.Constraint("Equal", 7, 1))
sketch2.addConstraint(Sketcher.Constraint("Equal", 13, 11))
sketch2.addConstraint(Sketcher.Constraint("Equal", 23, 17))
sketch2.addConstraint(Sketcher.Constraint("Equal", 29, 27))
sketch2.addConstraint(Sketcher.Constraint("Equal", 36, 34))
sketch2.addConstraint(Sketcher.Constraint("Equal", 44, 42))
sketch2.addConstraint(Sketcher.Constraint("Equal", 55, 49))
sketch2.addConstraint(Sketcher.Constraint("Equal", 61, 59))
sketch2.addConstraint(Sketcher.Constraint("Equal", 71, 65))
sketch2.addConstraint(Sketcher.Constraint("Equal", 77, 75))
sketch2.addConstraint(Sketcher.Constraint("DistanceX", 3, 2, 3, 1, Q("26.78784 mm")))
sketch2.addConstraint(Sketcher.Constraint("DistanceX", 19, 2, 19, 1, Q("23.343689 mm")))
sketch2.addConstraint(Sketcher.Constraint("DistanceX", 51, 2, 51, 1, Q("15.498679 mm")))
sketch2.addConstraint(Sketcher.Constraint("DistanceX", 57, 2, 57, 1, Q("14.670252 mm")))
sketch2.addConstraint(Sketcher.Constraint("DistanceX", 73, 1, 73, 2, Q("11.034759 mm")))
sketch2.addConstraint(Sketcher.Constraint("Distance", 0, Q("26.78784 mm")))
sketch2.addConstraint(Sketcher.Constraint("Distance", 16, Q("23.343689 mm")))
sketch2.addConstraint(Sketcher.Constraint("Distance", 48, Q("15.498679 mm")))
sketch2.addConstraint(Sketcher.Constraint("Distance", 56, Q("14.670252 mm")))
sketch2.addConstraint(Sketcher.Constraint("Distance", 72, Q("11.034759 mm")))
sketch2.addConstraint(Sketcher.Constraint("DistanceX", 9, 2, 9, 1, Q("25.959413 mm")))
sketch2.addConstraint(Sketcher.Constraint("DistanceX", 25, 2, 25, 1, Q("22.515262 mm")))
sketch2.addConstraint(Sketcher.Constraint("DistanceX", 32, 1, 32, 2, Q("19.516855 mm")))
sketch2.addConstraint(Sketcher.Constraint("DistanceX", 40, 2, 40, 1, Q("18.688428 mm")))
sketch2.addConstraint(Sketcher.Constraint("DistanceX", 67, 1, 67, 2, Q("11.863186 mm")))
sketch2.addConstraint(Sketcher.Constraint("DistanceY", -1, 1, 32, 2, Q("23.558928 mm")))
sketch2.addConstraint(Sketcher.Constraint("DistanceY", -1, 1, 40, 2, Q("22.558928 mm")))
sketch2.addConstraint(Sketcher.Constraint("Distance", 8, Q("25.959413 mm")))
sketch2.addConstraint(Sketcher.Constraint("Distance", 24, Q("22.515262 mm")))
sketch2.addConstraint(Sketcher.Constraint("Distance", 64, Q("11.863186 mm")))
pocket1 = doc.addObject("PartDesign::Pocket", "Pocket")
body.addObject(pocket1)
pocket1.Profile = sketch2
pocket1.Length = 1.2

# Sketch on XZ plane
sketch3 = doc.addObject("Sketcher::SketchObject", "Sketch002")
body.addObject(sketch3)
sketch3.AttachmentSupport = (doc.XZ_Plane, [""])
sketch3.MapMode = "FlatFace"
sketch3.AttachmentOffset = App.Placement(Vector(0, 0, -2), App.Rotation())
sketch3.addGeometry(Part.LineSegment(Vector(-37.5, -0.4, 0), Vector(-37.5, 0.4, 0)), False)
sketch3.addGeometry(Part.LineSegment(Vector(-37.5, 0.4, 0), Vector(-32.5, 0.4, 0)), False)
sketch3.addGeometry(Part.LineSegment(Vector(-32.5, 0.4, 0), Vector(-32.5, -0.4, 0)), False)
sketch3.addGeometry(Part.LineSegment(Vector(-32.5, -0.4, 0), Vector(-37.5, -0.4, 0)), False)
sketch3.addGeometry(Part.LineSegment(Vector(32.5, -0.4, 0), Vector(32.5, 0.4, 0)), False)
sketch3.addGeometry(Part.LineSegment(Vector(32.5, 0.4, 0), Vector(37.5, 0.4, 0)), False)
sketch3.addGeometry(Part.LineSegment(Vector(37.5, 0.4, 0), Vector(37.5, -0.4, 0)), False)
sketch3.addGeometry(Part.LineSegment(Vector(37.5, -0.4, 0), Vector(32.5, -0.4, 0)), False)
sketch3.addConstraint(Sketcher.Constraint("Coincident", 0, 2, 1, 1))
sketch3.addConstraint(Sketcher.Constraint("Coincident", 1, 2, 2, 1))
sketch3.addConstraint(Sketcher.Constraint("Coincident", 2, 2, 3, 1))
sketch3.addConstraint(Sketcher.Constraint("Coincident", 3, 2, 0, 1))
sketch3.addConstraint(Sketcher.Constraint("Coincident", 4, 2, 5, 1))
sketch3.addConstraint(Sketcher.Constraint("Coincident", 5, 2, 6, 1))
sketch3.addConstraint(Sketcher.Constraint("Coincident", 6, 2, 7, 1))
sketch3.addConstraint(Sketcher.Constraint("Coincident", 7, 2, 4, 1))
sketch3.addConstraint(Sketcher.Constraint("Vertical", 0))
sketch3.addConstraint(Sketcher.Constraint("Horizontal", 1))
sketch3.addConstraint(Sketcher.Constraint("Vertical", 2))
sketch3.addConstraint(Sketcher.Constraint("Horizontal", 3))
sketch3.addConstraint(Sketcher.Constraint("Vertical", 4))
sketch3.addConstraint(Sketcher.Constraint("Horizontal", 5))
sketch3.addConstraint(Sketcher.Constraint("Vertical", 6))
sketch3.addConstraint(Sketcher.Constraint("Horizontal", 7))
sketch3.addConstraint(Sketcher.Constraint("Symmetric", 2, 2, 4, 2, -1, 1))
sketch3.addConstraint(Sketcher.Constraint("Symmetric", 0, 2, 6, 2, -1, 1))
sketch3.addConstraint(Sketcher.Constraint("Horizontal", 1, 2, 4, 2))
sketch3.addConstraint(Sketcher.Constraint("DistanceX", 1, 1, 1, 2, Q("5 mm")))
sketch3.addConstraint(Sketcher.Constraint("DistanceY", 0, 1, 0, 2, Q("0.8 mm")))
sketch3.addConstraint(Sketcher.Constraint("DistanceX", 1, 2, 4, 2, Q("65 mm")))
pocket2 = doc.addObject("PartDesign::Pocket", "Pocket001")
body.addObject(pocket2)
pocket2.Profile = sketch3
pocket2.Type = "ThroughAll"
pocket2.Reversed = True

# Sketch on XZ plane
sketch4 = doc.addObject("Sketcher::SketchObject", "Sketch003")
body.addObject(sketch4)
sketch4.AttachmentSupport = (doc.XZ_Plane, [""])
sketch4.MapMode = "FlatFace"
sketch4.AttachmentOffset = App.Placement(Vector(0, 0, -2), App.Rotation())
sketch4.addGeometry(Part.Circle(Vector(0, 0, 0), Vector(0, 0, 1), 2.4), False)
sketch4.addConstraint(Sketcher.Constraint("Coincident", 0, 3, -1, 1))
sketch4.addConstraint(Sketcher.Constraint("Diameter", 0, Q("4.8 mm")))
pocket3 = doc.addObject("PartDesign::Pocket", "Pocket002")
body.addObject(pocket3)
pocket3.Profile = sketch4
pocket3.Type = "ThroughAll"
pocket3.Reversed = True

doc.recompute()
